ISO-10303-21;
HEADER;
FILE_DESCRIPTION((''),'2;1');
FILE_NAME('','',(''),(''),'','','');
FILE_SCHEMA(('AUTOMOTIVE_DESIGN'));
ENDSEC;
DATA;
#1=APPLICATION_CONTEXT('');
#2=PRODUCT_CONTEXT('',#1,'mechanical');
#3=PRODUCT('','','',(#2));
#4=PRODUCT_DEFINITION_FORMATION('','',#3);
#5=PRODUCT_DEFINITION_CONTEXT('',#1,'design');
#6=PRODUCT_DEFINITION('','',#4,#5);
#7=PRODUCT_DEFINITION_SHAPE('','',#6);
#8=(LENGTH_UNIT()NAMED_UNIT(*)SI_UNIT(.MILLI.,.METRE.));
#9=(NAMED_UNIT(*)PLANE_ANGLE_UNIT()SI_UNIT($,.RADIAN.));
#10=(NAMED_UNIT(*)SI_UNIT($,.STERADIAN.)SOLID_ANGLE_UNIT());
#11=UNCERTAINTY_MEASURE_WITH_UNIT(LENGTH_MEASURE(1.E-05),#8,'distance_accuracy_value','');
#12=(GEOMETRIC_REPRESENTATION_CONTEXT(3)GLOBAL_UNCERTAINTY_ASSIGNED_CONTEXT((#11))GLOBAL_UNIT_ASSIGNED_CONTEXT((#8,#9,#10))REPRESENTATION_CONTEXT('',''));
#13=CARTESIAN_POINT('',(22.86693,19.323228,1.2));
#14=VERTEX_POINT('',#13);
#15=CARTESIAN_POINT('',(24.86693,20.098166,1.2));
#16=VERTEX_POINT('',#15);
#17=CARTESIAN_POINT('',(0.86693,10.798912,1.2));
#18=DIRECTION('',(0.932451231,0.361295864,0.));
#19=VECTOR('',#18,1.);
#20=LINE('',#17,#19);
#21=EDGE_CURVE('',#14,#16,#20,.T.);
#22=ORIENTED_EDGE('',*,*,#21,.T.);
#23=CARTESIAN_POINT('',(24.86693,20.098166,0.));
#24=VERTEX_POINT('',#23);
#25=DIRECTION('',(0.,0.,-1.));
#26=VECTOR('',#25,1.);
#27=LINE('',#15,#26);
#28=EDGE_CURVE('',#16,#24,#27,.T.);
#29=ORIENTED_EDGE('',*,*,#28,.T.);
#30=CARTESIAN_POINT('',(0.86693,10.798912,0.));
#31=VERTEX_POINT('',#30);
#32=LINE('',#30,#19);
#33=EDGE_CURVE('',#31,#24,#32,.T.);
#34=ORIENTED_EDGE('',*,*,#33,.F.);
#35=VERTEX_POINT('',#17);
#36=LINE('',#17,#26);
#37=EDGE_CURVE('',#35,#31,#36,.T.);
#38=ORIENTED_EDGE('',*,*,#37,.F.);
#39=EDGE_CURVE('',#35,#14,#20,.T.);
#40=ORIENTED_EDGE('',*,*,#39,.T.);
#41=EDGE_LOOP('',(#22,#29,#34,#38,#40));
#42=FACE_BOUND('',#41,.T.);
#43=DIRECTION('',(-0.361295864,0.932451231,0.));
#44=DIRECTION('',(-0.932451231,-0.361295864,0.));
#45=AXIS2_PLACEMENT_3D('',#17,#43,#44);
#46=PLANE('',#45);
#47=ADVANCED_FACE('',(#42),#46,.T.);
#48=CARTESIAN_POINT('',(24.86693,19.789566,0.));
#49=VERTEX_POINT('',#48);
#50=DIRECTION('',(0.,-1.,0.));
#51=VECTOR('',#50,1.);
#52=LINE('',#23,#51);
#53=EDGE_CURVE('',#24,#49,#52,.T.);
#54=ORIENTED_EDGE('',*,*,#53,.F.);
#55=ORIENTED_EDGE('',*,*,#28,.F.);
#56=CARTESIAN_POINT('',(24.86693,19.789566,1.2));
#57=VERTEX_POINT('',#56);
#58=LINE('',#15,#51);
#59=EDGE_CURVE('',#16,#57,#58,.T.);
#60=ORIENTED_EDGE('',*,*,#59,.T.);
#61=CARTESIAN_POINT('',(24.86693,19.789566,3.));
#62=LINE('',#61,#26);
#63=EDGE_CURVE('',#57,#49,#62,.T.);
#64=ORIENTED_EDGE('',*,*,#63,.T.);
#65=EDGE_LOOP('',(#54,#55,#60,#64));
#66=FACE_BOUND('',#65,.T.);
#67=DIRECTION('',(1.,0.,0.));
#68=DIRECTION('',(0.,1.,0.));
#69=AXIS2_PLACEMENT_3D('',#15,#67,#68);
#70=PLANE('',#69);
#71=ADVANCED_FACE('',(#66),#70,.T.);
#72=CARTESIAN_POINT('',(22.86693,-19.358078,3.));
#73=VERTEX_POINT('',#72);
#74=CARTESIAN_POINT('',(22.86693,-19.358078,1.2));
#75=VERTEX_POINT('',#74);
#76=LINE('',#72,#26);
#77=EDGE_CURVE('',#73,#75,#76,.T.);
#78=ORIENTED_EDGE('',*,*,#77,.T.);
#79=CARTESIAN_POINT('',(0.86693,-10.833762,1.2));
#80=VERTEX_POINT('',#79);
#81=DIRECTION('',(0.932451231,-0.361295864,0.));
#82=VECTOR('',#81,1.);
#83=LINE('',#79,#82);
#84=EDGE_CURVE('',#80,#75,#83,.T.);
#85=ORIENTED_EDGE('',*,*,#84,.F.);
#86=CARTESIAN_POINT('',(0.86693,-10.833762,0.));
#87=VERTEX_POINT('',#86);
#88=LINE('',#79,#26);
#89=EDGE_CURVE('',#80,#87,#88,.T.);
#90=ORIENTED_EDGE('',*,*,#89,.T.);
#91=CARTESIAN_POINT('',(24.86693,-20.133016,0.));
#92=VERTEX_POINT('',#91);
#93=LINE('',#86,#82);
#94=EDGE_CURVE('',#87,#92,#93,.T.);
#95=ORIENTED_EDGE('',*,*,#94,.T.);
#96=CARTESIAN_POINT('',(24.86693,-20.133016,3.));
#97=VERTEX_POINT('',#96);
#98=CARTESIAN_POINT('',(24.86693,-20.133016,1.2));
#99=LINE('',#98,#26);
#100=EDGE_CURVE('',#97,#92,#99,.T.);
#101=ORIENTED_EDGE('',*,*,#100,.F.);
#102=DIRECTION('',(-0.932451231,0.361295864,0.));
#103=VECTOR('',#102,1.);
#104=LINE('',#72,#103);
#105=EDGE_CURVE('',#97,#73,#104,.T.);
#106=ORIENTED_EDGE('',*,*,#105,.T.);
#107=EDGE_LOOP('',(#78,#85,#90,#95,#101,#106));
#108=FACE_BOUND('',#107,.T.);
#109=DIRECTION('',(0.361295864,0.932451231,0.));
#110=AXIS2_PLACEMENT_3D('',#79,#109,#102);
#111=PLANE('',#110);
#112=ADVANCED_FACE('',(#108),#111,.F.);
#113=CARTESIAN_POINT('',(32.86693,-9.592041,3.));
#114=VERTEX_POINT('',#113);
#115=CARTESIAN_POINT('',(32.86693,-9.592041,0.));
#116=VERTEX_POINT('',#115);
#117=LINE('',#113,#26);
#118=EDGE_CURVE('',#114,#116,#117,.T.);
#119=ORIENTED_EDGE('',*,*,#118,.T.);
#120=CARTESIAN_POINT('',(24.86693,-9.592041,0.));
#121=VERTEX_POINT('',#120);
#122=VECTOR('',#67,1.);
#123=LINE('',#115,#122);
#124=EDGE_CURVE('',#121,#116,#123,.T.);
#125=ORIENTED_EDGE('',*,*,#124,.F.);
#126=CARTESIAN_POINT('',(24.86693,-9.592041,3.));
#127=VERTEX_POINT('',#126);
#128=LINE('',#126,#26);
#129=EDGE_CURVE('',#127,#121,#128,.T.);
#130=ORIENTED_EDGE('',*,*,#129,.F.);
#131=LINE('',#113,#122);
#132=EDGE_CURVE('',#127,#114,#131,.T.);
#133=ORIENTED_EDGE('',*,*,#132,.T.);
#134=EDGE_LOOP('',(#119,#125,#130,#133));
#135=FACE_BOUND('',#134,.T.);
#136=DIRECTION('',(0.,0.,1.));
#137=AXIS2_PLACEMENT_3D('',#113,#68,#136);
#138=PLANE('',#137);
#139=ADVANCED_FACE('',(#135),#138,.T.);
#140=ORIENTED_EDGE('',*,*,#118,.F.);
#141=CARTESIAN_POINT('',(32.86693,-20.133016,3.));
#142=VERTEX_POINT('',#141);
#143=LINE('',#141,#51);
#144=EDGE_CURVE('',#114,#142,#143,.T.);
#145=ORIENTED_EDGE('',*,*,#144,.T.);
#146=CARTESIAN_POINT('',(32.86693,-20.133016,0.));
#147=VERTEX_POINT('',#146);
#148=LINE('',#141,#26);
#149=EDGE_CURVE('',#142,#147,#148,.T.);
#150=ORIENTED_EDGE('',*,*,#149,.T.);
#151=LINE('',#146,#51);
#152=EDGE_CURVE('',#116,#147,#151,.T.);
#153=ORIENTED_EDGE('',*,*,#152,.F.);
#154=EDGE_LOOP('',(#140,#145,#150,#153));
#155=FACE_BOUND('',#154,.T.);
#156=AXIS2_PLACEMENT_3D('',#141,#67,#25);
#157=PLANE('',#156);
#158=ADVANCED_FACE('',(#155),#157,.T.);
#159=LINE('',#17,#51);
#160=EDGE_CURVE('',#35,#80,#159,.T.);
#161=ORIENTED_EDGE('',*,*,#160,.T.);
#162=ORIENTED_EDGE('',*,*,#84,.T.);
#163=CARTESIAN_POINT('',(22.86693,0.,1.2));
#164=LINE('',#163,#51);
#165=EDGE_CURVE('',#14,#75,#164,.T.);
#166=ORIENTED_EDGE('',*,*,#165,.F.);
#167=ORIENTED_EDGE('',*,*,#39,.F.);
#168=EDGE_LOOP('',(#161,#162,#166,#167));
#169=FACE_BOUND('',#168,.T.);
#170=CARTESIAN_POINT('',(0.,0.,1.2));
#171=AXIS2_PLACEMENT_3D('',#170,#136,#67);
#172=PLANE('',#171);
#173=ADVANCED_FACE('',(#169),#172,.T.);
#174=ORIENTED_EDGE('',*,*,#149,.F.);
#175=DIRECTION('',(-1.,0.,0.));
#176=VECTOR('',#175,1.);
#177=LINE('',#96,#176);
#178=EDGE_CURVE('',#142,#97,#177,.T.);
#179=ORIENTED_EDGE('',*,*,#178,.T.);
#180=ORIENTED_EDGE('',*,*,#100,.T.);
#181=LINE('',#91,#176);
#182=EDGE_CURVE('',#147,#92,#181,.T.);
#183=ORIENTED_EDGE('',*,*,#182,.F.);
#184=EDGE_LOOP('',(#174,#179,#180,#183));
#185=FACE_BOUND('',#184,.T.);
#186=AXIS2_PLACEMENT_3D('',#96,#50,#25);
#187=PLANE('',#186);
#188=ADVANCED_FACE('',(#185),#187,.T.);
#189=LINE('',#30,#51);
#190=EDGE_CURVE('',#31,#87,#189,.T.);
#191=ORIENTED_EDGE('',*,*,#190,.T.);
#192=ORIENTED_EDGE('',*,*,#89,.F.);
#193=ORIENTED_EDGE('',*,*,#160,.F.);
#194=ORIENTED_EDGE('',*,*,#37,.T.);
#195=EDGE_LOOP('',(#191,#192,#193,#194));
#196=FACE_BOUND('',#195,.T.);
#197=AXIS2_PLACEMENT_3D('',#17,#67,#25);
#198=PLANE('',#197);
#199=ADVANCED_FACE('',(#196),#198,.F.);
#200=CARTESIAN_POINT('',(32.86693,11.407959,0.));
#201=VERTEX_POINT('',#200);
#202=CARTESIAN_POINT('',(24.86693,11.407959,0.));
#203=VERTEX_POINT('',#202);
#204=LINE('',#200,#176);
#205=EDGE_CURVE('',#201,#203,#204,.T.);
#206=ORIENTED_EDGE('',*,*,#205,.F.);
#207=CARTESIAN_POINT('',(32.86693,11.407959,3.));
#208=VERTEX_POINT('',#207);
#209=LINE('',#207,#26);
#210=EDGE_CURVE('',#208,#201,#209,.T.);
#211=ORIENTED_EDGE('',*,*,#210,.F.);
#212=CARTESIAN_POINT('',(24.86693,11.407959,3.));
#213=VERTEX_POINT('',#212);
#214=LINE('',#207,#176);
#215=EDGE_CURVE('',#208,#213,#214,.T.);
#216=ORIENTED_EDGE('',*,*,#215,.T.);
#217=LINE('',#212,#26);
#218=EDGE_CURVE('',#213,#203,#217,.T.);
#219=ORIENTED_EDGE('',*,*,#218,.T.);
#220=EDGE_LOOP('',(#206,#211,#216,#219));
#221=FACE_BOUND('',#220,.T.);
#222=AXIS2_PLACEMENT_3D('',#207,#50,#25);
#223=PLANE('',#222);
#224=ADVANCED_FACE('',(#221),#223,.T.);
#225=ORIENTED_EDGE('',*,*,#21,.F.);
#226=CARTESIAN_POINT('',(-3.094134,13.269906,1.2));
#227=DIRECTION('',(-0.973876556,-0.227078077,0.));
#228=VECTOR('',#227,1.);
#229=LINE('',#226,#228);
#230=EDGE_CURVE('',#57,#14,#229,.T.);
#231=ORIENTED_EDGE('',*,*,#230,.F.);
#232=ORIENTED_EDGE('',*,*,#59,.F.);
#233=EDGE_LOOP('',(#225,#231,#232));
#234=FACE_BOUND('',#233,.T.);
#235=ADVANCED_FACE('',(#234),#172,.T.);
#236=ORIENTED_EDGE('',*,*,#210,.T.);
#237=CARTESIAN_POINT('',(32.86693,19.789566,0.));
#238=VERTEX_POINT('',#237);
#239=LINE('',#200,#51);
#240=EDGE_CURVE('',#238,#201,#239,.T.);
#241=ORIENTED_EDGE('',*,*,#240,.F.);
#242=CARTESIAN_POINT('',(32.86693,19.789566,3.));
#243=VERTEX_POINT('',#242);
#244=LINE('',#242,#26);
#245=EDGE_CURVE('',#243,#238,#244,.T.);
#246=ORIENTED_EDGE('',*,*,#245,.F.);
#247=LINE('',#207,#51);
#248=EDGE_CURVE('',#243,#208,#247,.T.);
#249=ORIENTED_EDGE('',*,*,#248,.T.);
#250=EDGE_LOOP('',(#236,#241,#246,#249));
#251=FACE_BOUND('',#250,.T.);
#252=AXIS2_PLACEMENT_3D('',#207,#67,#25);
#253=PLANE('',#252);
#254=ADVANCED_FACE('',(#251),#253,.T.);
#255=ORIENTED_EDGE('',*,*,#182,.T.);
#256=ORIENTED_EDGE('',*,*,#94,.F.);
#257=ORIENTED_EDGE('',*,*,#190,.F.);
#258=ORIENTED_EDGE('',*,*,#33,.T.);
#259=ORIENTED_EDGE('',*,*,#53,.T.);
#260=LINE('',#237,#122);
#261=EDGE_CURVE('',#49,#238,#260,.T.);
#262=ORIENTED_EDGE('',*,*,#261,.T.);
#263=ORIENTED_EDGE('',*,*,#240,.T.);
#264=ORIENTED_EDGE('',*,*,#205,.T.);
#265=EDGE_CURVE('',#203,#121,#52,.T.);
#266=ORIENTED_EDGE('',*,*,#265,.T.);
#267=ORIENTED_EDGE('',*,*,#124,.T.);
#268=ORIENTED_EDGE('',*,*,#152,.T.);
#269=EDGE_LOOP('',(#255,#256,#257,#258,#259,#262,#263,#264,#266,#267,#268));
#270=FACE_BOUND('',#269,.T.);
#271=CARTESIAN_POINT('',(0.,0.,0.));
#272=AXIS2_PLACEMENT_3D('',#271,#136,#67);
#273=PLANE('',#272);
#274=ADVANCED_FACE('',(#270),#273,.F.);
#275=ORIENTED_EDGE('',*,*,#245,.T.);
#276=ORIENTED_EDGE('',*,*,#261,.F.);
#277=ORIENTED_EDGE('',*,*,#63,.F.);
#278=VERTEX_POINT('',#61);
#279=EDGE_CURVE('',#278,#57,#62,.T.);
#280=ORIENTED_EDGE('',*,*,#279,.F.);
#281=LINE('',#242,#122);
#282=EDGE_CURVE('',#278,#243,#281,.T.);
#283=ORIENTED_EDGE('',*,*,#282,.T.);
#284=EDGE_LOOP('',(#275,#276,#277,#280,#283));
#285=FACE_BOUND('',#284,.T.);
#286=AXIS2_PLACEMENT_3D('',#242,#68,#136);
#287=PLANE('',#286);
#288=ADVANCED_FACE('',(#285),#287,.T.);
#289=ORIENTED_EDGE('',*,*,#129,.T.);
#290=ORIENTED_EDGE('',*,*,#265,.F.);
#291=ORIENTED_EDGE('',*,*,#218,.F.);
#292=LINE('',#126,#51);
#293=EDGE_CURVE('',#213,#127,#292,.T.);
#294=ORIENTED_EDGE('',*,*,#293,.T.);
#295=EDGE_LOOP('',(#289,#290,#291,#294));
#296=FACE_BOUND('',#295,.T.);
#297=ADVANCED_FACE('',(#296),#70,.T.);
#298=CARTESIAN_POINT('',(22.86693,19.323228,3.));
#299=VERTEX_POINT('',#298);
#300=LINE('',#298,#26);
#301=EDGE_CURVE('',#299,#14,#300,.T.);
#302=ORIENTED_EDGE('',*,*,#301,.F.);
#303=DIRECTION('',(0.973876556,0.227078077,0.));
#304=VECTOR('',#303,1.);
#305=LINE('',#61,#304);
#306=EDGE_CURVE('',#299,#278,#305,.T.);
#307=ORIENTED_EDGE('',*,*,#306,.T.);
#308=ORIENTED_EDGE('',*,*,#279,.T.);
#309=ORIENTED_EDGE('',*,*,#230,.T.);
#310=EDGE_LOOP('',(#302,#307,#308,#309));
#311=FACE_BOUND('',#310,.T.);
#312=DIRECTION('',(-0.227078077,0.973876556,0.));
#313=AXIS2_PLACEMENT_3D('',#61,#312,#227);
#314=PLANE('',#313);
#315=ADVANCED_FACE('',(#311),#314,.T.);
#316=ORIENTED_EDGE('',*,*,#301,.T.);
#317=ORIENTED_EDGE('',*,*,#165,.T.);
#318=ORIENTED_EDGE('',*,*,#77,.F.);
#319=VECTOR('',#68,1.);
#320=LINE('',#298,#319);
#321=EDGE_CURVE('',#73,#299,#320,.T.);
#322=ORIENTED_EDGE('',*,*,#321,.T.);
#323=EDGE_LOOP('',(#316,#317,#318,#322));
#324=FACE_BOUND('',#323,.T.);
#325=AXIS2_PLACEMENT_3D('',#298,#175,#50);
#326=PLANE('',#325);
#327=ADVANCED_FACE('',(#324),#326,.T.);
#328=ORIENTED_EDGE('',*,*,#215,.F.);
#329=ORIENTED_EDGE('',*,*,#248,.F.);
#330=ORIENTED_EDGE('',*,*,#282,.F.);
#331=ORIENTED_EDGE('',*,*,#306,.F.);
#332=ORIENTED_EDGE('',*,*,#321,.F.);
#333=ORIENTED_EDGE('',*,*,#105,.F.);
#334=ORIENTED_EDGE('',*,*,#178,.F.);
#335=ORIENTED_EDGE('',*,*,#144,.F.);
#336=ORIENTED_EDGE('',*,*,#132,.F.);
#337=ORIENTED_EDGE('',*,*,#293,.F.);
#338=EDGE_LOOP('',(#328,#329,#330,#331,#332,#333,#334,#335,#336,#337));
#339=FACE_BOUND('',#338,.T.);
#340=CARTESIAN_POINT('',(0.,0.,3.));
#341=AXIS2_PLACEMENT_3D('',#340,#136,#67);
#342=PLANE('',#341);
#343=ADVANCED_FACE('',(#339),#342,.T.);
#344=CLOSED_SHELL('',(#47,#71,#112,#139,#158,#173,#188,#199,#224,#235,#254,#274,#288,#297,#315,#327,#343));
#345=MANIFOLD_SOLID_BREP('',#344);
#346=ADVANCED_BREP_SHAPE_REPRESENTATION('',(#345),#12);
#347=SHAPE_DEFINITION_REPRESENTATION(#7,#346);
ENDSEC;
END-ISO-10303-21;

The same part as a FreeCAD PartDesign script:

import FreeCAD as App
import Part
import Sketcher
from FreeCAD import Vector
Q = App.Units.Quantity

doc = App.newDocument("Part")
body = doc.addObject("PartDesign::Body", "Body")

sketch1 = doc.addObject("Sketcher::SketchObject", "Sketch")
body.addObject(sketch1)
sketch1.AttachmentSupport = (doc.XY_Plane, [""])
sketch1.MapMode = "FlatFace"
sketch1.addGeometry([
    Part.LineSegment(Vector(24.86693, 20.098166, 0), Vector(0.86693, 10.798912, 0)),
    Part.LineSegment(Vector(0.86693, 10.798912, 0), Vector(0.86693, -10.833762, 0)),
    Part.LineSegment(Vector(0.86693, -10.833762, 0), Vector(24.86693, -20.133016, 0)),
    Part.LineSegment(Vector(24.86693, -20.133016, 0), Vector(24.86693, 20.098166, 0)),
], False)
sketch1.addConstraint([
    Sketcher.Constraint("Coincident", 0, 2, 1, 1),
    Sketcher.Constraint("Coincident", 1, 2, 2, 1),
    Sketcher.Constraint("Coincident", 2, 2, 3, 1),
    Sketcher.Constraint("Coincident", 3, 2, 0, 1),
    Sketcher.Constraint("Vertical", 1),
    Sketcher.Constraint("Vertical", 3),
    Sketcher.Constraint("Equal", 0, 2),
    Sketcher.Constraint("DistanceX", 1, 2, 2, 2, Q("24 mm")),
    Sketcher.Constraint("DistanceY", 3, 1, 3, 2, Q("40.231181 mm")),
    Sketcher.Constraint("Distance", 0, Q("25.738612 mm")),
    Sketcher.Constraint("DistanceX", -1, 1, 0, 2, Q("0.86693 mm")),
    Sketcher.Constraint("DistanceY", -1, 1, 0, 2, Q("10.798912 mm")),
])
pad1 = doc.addObject("PartDesign::Pad", "Pad")
body.addObject(pad1)
pad1.Profile = sketch1
pad1.Length = 1.2

sketch2 = doc.addObject("Sketcher::SketchObject", "Sketch001")
body.addObject(sketch2)
sketch2.AttachmentSupport = (doc.XY_Plane, [""])
sketch2.MapMode = "FlatFace"
sketch2.addGeometry([
    Part.LineSegment(Vector(22.86693, 19.323228, 0), Vector(24.86693, 19.789566, 0)),
    Part.LineSegment(Vector(24.86693, 19.789566, 0), Vector(32.86693, 19.789566, 0)),
    Part.LineSegment(Vector(32.86693, 19.789566, 0), Vector(32.86693, 11.407959, 0)),
    Part.LineSegment(Vector(32.86693, 11.407959, 0), Vector(24.86693, 11.407959, 0)),
    Part.LineSegment(Vector(24.86693, 11.407959, 0), Vector(24.86693, -9.592041, 0)),
    Part.LineSegment(Vector(24.86693, -9.592041, 0), Vector(32.86693, -9.592041, 0)),
    Part.LineSegment(Vector(32.86693, -9.592041, 0), Vector(32.86693, -20.133016, 0)),
    Part.LineSegment(Vector(32.86693, -20.133016, 0), Vector(24.86693, -20.133016, 0)),
    Part.LineSegment(Vector(24.86693, -20.133016, 0), Vector(22.86693, -19.358078, 0)),
    Part.LineSegment(Vector(22.86693, -19.358078, 0), Vector(22.86693, 19.323228, 0)),
], False)
sketch2.addConstraint([
    Sketcher.Constraint("Coincident", 0, 2, 1, 1),
    Sketcher.Constraint("Coincident", 1, 2, 2, 1),
    Sketcher.Constraint("Coincident", 2, 2, 3, 1),
    Sketcher.Constraint("Coincident", 3, 2, 4, 1),
    Sketcher.Constraint("Coincident", 4, 2, 5, 1),
    Sketcher.Constraint("Coincident", 5, 2, 6, 1),
    Sketcher.Constraint("Coincident", 6, 2, 7, 1),
    Sketcher.Constraint("Coincident", 7, 2, 8, 1),
    Sketcher.Constraint("Coincident", 8, 2, 9, 1),
    Sketcher.Constraint("Coincident", 9, 2, 0, 1),
    Sketcher.Constraint("Horizontal", 1),
    Sketcher.Constraint("Vertical", 2),
    Sketcher.Constraint("Horizontal", 3),
    Sketcher.Constraint("Vertical", 4),
    Sketcher.Constraint("Horizontal", 5),
    Sketcher.Constraint("Vertical", 6),
    Sketcher.Constraint("Horizontal", 7),
    Sketcher.Constraint("Vertical", 9),
    Sketcher.Constraint("Vertical", 0, 2, 3, 2),
    Sketcher.Constraint("Vertical", 2, 2, 5, 2),
    Sketcher.Constraint("Vertical", 4, 2, 7, 2),
    Sketcher.Constraint("DistanceX", 1, 1, 1, 2, Q("8 mm")),
    Sketcher.Constraint("DistanceY", 4, 2, 4, 1, Q("21 mm")),
    Sketcher.Constraint("DistanceX", 8, 2, 7, 2, Q("2 mm")),
    Sketcher.Constraint("Distance", 0, Q("2.053648 mm")),
    Sketcher.Constraint("DistanceY", 2, 2, 2, 1, Q("8.381607 mm")),
    Sketcher.Constraint("DistanceY", 6, 2, 6, 1, Q("10.540975 mm")),
    Sketcher.Constraint("DistanceY", 9, 1, 9, 2, Q("38.681306 mm")),
    Sketcher.Constraint("DistanceX", -1, 1, 0, 2, Q("24.86693 mm")),
    Sketcher.Constraint("DistanceY", -1, 1, 2, 2, Q("11.407959 mm")),
])
pad2 = doc.addObject("PartDesign::Pad", "Pad001")
body.addObject(pad2)
pad2.Profile = sketch2
pad2.Length = 3

doc.recompute()
